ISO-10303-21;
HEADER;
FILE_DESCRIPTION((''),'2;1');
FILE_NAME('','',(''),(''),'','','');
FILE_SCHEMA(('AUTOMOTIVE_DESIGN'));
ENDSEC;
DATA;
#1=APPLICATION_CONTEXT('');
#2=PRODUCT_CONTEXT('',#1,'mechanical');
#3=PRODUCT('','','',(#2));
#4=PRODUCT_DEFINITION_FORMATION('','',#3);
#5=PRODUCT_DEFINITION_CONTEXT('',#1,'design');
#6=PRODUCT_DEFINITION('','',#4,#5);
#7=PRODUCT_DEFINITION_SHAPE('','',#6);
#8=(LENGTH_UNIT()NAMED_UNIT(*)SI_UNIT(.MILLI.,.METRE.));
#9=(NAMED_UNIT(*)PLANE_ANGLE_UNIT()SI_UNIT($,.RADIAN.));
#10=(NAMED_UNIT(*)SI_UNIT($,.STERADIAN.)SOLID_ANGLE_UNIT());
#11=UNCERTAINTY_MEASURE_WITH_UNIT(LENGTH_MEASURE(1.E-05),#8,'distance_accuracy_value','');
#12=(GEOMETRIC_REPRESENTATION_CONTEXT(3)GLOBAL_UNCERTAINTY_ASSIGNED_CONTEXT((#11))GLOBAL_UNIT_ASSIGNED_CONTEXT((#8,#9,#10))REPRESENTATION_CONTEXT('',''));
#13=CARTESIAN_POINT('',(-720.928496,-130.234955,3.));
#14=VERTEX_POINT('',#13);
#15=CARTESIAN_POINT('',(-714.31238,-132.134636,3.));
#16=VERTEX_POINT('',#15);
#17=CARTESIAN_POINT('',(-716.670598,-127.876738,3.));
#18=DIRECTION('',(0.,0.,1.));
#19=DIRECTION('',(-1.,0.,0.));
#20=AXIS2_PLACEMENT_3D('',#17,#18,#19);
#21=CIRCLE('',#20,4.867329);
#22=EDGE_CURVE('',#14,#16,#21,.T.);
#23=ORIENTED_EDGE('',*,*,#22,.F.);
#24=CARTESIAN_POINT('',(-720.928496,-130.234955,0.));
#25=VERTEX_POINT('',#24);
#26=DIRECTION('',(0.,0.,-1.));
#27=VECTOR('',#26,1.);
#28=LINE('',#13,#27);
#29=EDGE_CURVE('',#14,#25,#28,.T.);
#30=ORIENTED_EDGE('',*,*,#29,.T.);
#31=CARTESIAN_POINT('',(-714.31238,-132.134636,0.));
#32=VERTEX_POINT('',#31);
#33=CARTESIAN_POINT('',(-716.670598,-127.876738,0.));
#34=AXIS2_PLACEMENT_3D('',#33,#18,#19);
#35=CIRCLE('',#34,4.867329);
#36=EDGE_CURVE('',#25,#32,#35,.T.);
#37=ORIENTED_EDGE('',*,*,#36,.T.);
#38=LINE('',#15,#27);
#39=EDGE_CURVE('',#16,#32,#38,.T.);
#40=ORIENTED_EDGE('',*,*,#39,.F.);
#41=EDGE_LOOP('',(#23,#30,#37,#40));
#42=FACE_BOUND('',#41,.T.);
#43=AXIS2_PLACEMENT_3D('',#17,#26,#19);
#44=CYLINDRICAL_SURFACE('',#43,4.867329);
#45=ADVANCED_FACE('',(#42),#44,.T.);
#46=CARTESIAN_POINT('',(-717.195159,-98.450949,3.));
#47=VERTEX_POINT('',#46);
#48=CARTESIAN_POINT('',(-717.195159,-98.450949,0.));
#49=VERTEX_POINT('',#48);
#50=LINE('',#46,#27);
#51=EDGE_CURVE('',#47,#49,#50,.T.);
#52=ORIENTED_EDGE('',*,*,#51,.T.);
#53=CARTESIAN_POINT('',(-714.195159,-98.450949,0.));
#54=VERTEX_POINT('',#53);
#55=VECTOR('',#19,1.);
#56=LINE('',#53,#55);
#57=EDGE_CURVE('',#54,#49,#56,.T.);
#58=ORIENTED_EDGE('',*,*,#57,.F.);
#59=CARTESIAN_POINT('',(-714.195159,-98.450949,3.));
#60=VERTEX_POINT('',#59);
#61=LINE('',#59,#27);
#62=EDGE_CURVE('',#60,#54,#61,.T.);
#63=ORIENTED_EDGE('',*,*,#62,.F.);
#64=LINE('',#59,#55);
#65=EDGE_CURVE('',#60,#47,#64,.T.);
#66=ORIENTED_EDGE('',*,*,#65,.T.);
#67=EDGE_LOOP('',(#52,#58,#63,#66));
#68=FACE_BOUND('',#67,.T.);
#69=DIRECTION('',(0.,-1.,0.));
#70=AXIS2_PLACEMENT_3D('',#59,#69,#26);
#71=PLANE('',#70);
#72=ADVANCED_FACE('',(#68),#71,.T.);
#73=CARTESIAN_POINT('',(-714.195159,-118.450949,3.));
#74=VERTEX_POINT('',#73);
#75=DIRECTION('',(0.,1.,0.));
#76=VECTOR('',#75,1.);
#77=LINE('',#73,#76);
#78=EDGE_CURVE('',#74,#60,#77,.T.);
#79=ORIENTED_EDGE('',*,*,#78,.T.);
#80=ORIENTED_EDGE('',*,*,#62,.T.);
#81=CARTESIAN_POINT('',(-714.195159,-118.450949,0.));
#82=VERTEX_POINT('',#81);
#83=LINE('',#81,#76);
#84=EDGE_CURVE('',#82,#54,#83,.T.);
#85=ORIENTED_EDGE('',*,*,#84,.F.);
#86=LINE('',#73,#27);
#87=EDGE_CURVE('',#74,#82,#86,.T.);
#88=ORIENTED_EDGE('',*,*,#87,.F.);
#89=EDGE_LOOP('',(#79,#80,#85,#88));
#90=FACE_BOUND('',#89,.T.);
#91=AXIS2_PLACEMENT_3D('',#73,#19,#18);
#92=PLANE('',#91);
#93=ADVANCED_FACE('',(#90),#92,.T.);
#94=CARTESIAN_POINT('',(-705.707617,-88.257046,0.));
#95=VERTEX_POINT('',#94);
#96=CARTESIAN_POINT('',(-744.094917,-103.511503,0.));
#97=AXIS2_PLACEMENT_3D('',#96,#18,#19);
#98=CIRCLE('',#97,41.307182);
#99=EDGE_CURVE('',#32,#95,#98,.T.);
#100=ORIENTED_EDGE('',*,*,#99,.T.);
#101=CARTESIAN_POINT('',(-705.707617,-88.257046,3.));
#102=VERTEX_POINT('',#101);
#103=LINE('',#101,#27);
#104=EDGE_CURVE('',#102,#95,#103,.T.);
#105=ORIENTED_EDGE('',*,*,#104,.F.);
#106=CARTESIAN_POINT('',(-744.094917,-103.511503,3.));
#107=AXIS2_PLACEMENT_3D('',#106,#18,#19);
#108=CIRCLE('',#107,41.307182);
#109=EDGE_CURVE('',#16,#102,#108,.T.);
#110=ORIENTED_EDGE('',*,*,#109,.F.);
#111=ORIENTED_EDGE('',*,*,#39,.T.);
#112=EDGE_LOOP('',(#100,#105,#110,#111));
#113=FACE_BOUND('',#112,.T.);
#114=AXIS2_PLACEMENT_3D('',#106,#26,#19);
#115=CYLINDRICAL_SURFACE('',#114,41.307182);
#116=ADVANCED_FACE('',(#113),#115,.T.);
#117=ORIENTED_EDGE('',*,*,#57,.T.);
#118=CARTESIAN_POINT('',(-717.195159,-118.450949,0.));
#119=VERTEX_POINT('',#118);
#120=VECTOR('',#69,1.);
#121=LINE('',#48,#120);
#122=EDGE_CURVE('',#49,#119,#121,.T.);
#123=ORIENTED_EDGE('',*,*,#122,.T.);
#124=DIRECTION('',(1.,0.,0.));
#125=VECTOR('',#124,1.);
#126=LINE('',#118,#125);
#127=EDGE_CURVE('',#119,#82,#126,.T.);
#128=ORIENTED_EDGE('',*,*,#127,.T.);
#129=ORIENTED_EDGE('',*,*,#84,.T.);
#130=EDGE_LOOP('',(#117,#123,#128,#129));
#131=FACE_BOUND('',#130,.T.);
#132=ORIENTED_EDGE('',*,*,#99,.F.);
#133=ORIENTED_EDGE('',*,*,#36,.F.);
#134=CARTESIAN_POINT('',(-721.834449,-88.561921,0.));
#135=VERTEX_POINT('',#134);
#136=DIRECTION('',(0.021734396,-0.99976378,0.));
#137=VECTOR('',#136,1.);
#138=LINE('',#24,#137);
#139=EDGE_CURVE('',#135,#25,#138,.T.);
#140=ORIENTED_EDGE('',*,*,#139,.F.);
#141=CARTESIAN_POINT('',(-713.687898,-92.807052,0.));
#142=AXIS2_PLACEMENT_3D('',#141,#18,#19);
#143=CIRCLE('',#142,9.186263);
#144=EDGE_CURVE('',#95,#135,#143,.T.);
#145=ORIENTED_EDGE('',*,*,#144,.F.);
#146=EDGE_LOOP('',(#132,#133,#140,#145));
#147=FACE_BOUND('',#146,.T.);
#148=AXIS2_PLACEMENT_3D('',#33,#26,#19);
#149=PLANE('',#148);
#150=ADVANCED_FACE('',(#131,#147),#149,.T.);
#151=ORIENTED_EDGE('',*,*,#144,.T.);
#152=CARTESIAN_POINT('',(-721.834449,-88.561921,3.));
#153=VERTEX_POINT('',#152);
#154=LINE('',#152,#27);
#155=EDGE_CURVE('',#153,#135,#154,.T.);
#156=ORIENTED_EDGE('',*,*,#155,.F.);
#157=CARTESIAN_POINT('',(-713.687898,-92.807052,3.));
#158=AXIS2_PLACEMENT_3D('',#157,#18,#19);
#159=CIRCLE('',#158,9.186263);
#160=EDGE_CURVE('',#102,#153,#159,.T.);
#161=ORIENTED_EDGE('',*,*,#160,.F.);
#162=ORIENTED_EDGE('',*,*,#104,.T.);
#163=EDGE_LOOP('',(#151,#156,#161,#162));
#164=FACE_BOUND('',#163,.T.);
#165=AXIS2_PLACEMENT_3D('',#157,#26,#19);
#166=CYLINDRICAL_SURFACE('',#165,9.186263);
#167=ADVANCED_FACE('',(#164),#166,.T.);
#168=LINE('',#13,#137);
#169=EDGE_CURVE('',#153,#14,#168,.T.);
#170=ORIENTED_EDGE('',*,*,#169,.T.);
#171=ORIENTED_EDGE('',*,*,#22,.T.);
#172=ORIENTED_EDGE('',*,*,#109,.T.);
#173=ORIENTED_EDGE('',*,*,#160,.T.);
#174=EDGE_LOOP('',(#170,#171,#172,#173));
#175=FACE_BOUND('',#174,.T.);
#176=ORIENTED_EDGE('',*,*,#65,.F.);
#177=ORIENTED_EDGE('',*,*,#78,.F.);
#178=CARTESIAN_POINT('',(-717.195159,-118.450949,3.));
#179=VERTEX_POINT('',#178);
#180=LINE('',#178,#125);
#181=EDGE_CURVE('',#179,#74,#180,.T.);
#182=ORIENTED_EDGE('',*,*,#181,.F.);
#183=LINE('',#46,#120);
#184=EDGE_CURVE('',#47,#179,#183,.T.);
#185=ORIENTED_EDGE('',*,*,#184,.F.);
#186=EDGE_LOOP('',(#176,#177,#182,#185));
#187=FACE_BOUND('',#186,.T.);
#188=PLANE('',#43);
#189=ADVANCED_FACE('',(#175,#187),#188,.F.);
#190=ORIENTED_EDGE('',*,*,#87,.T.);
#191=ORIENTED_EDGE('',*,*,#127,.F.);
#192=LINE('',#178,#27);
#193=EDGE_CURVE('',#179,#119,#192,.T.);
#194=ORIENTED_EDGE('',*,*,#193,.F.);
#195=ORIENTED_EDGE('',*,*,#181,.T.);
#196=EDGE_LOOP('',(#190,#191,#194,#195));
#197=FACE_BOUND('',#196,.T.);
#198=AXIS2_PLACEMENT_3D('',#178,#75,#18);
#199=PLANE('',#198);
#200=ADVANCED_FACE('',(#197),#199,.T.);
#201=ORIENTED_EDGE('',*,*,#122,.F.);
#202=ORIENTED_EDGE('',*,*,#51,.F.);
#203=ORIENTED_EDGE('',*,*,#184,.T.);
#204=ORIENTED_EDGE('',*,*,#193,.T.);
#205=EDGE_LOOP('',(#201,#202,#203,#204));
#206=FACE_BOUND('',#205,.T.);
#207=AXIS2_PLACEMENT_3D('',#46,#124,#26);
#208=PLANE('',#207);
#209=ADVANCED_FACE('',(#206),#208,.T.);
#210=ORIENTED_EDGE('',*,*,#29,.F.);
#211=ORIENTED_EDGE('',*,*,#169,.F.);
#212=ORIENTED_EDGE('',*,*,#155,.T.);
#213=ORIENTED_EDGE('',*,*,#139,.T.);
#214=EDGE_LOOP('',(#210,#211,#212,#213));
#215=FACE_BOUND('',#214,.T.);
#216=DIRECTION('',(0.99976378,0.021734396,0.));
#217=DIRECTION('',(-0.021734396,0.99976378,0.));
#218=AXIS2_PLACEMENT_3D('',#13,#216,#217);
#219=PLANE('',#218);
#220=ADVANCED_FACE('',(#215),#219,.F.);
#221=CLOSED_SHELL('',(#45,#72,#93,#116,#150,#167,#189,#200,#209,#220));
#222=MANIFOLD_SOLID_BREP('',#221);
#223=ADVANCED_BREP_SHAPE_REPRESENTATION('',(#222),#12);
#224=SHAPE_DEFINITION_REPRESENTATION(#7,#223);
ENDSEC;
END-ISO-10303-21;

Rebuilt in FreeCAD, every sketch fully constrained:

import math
import FreeCAD as App
import Part
import Sketcher
Q = App.Units.Quantity


def add_polygon(sketch, points):
    """Adds a closed chain of lines whose ends are joined by coincident constraints."""
    first, n = sketch.GeometryCount, len(points)
    for a, b in zip(points, points[1:] + points[:1]):
        sketch.addGeometry(Part.LineSegment(App.Vector(*a, 0), App.Vector(*b, 0)), False)
    for i in range(n):
        sketch.addConstraint(Sketcher.Constraint("Coincident", first + i, 2, first + (i + 1) % n, 1))

doc = App.newDocument("Part")
body = doc.addObject("PartDesign::Body", "Body")

# Sketch on XY plane
sketch1 = doc.addObject("Sketcher::SketchObject", "Sketch")
body.addObject(sketch1)
sketch1.AttachmentSupport = (doc.XY_Plane, [""])
sketch1.MapMode = "FlatFace"
sketch1.addGeometry(Part.LineSegment(App.Vector(-721.8, -88.6, 0), App.Vector(-720.9, -130.2, 0)), False)  # 0
sketch1.addGeometry(Part.ArcOfCircle(Part.Circle(App.Vector(-716.7, -127.9, 0), App.Vector(0, 0, 1), 4.9), math.radians(-151), math.radians(-61)), False)  # 1
sketch1.addGeometry(Part.ArcOfCircle(Part.Circle(App.Vector(-744.1, -103.5, 0), App.Vector(0, 0, 1), 41.3), math.radians(-44), math.radians(22)), False)  # 2
sketch1.addGeometry(Part.ArcOfCircle(Part.Circle(App.Vector(-713.7, -92.8, 0), App.Vector(0, 0, 1), 9.2), math.radians(30), math.radians(152)), False)  # 3
add_polygon(sketch1, [(-717.2, -118.5), (-717.2, -98.5), (-714.2, -98.5), (-714.2, -118.5)])  # lines 4-7
sketch1.addConstraint(Sketcher.Constraint("Coincident", 0, 2, 1, 1))
sketch1.addConstraint(Sketcher.Constraint("Coincident", 1, 2, 2, 1))
sketch1.addConstraint(Sketcher.Constraint("Coincident", 2, 2, 3, 1))
sketch1.addConstraint(Sketcher.Constraint("Coincident", 3, 2, 0, 1))
sketch1.addConstraint(Sketcher.Constraint("Vertical", 4))
sketch1.addConstraint(Sketcher.Constraint("Horizontal", 5))
sketch1.addConstraint(Sketcher.Constraint("Vertical", 6))
sketch1.addConstraint(Sketcher.Constraint("Horizontal", 7))
sketch1.addConstraint(Sketcher.Constraint("DistanceX", 5, 1, 5, 2, Q("3 mm")))
sketch1.addConstraint(Sketcher.Constraint("DistanceY", 4, 1, 4, 2, Q("20 mm")))
sketch1.addConstraint(Sketcher.Constraint("Radius", 1, Q("4.867329 mm")))
sketch1.addConstraint(Sketcher.Constraint("Radius", 2, Q("41.307182 mm")))
sketch1.addConstraint(Sketcher.Constraint("Radius", 3, Q("9.186263 mm")))
sketch1.addConstraint(Sketcher.Constraint("DistanceX", 1, 3, 3, 3, Q("2.9827 mm")))
sketch1.addConstraint(Sketcher.Constraint("DistanceX", 0, 2, 1, 3, Q("4.257899 mm")))
sketch1.addConstraint(Sketcher.Constraint("DistanceY", 1, 2, 1, 3, Q("4.257899 mm")))
sketch1.addConstraint(Sketcher.Constraint("DistanceX", 2, 3, 2, 2, Q("38.3873 mm")))
sketch1.addConstraint(Sketcher.Constraint("Distance", 0, Q("41.682881 mm")))
sketch1.addConstraint(Sketcher.Constraint("DistanceX", 1, 2, -1, 1, Q("714.31238 mm")))
sketch1.addConstraint(Sketcher.Constraint("DistanceX", 3, 2, -1, 1, Q("721.834449 mm")))
sketch1.addConstraint(Sketcher.Constraint("DistanceY", 3, 2, -1, 1, Q("88.561921 mm")))
sketch1.addConstraint(Sketcher.Constraint("DistanceX", 4, 2, -1, 1, Q("717.195159 mm")))
sketch1.addConstraint(Sketcher.Constraint("DistanceY", 4, 2, -1, 1, Q("98.450949 mm")))
pad1 = doc.addObject("PartDesign::Pad", "Pad")
body.addObject(pad1)
pad1.Profile = sketch1
pad1.Length = 3

doc.recompute()
